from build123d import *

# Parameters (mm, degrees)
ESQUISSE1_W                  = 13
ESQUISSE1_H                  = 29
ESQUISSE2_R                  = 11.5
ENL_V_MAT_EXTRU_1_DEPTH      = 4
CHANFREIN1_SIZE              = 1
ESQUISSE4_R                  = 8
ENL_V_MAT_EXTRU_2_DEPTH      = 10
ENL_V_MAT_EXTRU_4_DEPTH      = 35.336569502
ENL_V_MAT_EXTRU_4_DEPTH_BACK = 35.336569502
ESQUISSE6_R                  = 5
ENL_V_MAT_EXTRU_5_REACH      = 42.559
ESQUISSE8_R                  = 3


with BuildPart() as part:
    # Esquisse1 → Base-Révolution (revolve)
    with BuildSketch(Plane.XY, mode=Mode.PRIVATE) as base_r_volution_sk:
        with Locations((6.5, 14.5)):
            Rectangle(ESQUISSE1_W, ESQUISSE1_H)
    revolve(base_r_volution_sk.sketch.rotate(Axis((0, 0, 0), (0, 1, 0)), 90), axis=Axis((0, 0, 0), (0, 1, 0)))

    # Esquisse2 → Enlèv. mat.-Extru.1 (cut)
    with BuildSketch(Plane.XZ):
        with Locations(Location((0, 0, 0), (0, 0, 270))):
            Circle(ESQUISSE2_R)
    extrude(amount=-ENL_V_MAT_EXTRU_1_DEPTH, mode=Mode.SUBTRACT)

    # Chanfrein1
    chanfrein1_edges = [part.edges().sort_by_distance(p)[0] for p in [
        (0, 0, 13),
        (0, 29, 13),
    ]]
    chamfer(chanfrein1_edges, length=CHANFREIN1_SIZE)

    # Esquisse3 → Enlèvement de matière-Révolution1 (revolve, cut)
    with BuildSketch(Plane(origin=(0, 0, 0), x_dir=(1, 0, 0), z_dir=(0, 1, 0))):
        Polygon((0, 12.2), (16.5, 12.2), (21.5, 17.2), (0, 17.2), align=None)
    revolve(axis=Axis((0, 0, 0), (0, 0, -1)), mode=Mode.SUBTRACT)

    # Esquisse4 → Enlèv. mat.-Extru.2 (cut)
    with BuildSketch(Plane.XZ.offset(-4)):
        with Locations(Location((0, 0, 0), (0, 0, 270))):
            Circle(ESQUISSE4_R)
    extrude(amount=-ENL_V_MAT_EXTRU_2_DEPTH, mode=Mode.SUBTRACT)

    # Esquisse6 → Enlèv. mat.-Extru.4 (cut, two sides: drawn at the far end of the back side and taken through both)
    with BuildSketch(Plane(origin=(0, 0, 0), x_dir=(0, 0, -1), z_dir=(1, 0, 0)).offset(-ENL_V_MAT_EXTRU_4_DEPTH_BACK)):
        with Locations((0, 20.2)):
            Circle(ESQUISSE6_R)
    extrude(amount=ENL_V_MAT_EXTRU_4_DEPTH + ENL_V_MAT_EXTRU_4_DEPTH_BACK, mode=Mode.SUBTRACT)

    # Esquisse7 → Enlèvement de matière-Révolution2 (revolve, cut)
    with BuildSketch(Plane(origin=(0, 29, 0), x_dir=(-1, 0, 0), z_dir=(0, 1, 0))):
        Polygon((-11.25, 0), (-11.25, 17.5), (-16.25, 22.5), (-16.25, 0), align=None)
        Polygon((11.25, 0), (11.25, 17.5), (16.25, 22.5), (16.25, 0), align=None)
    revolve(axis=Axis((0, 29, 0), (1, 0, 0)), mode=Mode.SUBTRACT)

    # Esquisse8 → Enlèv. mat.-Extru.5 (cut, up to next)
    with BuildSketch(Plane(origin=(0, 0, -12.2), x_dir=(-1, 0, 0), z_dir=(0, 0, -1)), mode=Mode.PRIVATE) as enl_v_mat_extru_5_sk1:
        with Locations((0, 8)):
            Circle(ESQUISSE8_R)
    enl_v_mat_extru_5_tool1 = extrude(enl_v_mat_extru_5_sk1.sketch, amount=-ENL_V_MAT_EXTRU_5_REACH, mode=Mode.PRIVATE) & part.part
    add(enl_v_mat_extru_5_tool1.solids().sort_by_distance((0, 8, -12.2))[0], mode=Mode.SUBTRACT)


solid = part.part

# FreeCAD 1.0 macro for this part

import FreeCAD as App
import Part
import Sketcher

V = App.Vector
Q = App.Units.Quantity


def edges_at(feature, points):
    """Names of the edges that pass closest to the given points."""
    edges = feature.Shape.Edges
    near = lambda p: min(range(len(edges)), key=lambda i: edges[i].distToShape(Part.Vertex(*p))[0])
    return sorted({f"Edge{near(p) + 1}" for p in points})


def add_polygon(sketch, points):
    """Adds a closed chain of lines whose ends are joined by coincident constraints."""
    first, n = sketch.GeometryCount, len(points)
    for a, b in zip(points, points[1:] + points[:1]):
        sketch.addGeometry(Part.LineSegment(App.Vector(*a, 0), App.Vector(*b, 0)), False)
    for i in range(n):
        sketch.addConstraint(Sketcher.Constraint("Coincident", first + i, 2, first + (i + 1) % n, 1))

doc = App.newDocument("Part")
body = doc.addObject("PartDesign::Body", "Body")

sketch1 = body.newObject("Sketcher::SketchObject", "Sketch")
sketch1.AttachmentSupport = (doc.getObject("XY_Plane"), [""])
sketch1.MapMode = "FlatFace"
add_polygon(sketch1, [(0, 29), (0, 0), (13, 0), (13, 29)])
sketch1.addConstraint([
    Sketcher.Constraint("Vertical", 0),
    Sketcher.Constraint("Horizontal", 1),
    Sketcher.Constraint("Vertical", 2),
    Sketcher.Constraint("Horizontal", 3),
    Sketcher.Constraint("Coincident", 0, 2, -1, 1),
    Sketcher.Constraint("DistanceX", 1, 1, 1, 2, 13.0),
    Sketcher.Constraint("DistanceY", 0, 2, 0, 1, 29.0),
])
revolution = body.newObject("PartDesign::Revolution", "Revolution")
revolution.Profile = sketch1
revolution.ReferenceAxis = (sketch1, ["V_Axis"])
revolution.Angle = 360

sketch2 = body.newObject("Sketcher::SketchObject", "Sketch001")
sketch2.AttachmentSupport = (doc.getObject("XZ_Plane"), [""])
sketch2.MapMode = "FlatFace"
sketch2.addGeometry(Part.Circle(V(0, 0, 0), V(0, 0, 1), 12), False)
sketch2.addConstraint([
    Sketcher.Constraint("Coincident", 0, 3, -1, 1),
    Sketcher.Constraint("Diameter", 0, 23.0),
])
pocket1 = body.newObject("PartDesign::Pocket", "Pocket")
pocket1.Profile = sketch2
pocket1.Length = 4
doc.recompute()

chamfer = body.newObject("PartDesign::Chamfer", "Chamfer")
chamfer.Base = (pocket1, edges_at(pocket1, [(0, 0, 13), (0, 29, 13)]))
chamfer.Size = 1

sketch3 = body.newObject("Sketcher::SketchObject", "Sketch002")
sketch3.AttachmentSupport = (doc.getObject("XZ_Plane"), [""])
sketch3.MapMode = "FlatFace"
add_polygon(sketch3, [(0, -12), (16, -12), (22, -17), (0, -17)])
sketch3.addConstraint([
    Sketcher.Constraint("Horizontal", 0),
    Sketcher.Constraint("Horizontal", 2),
    Sketcher.Constraint("Vertical", 3),
    Sketcher.Constraint("PointOnObject", 2, 2, -2),
    Sketcher.Constraint("DistanceY", 3, 1, 3, 2, 5.0),
    Sketcher.Constraint("Angle", 1, Q("-45 deg")),
    Sketcher.Constraint("DistanceX", 0, 1, 0, 2, 16.5),
    Sketcher.Constraint("DistanceY", 0, 2, -1, 1, 12.2),
])
groove = body.newObject("PartDesign::Groove", "Groove")
groove.Profile = sketch3
groove.ReferenceAxis = (sketch3, ["V_Axis"])
groove.Angle = 360

sketch4 = body.newObject("Sketcher::SketchObject", "Sketch003")
sketch4.AttachmentSupport = (doc.getObject("XZ_Plane"), [""])
sketch4.MapMode = "FlatFace"
sketch4.AttachmentOffset = App.Placement(V(0, 0, -4), App.Rotation())
sketch4.addGeometry(Part.Circle(V(0, 0, 0), V(0, 0, 1), 8), False)
sketch4.addConstraint([
    Sketcher.Constraint("Coincident", 0, 3, -1, 1),
    Sketcher.Constraint("Diameter", 0, 16.0),
])
pocket2 = body.newObject("PartDesign::Pocket", "Pocket001")
pocket2.Profile = sketch4
pocket2.Length = 10

sketch5 = body.newObject("Sketcher::SketchObject", "Sketch004")
sketch5.AttachmentSupport = (doc.getObject("YZ_Plane"), [""])
sketch5.MapMode = "FlatFace"
sketch5.addGeometry(Part.Circle(V(20, 0, 0), V(0, 0, 1), 5), False)
sketch5.addConstraint([
    Sketcher.Constraint("PointOnObject", 0, 3, -1),
    Sketcher.Constraint("Diameter", 0, 10.0),
    Sketcher.Constraint("DistanceX", -1, 1, 0, 3, 20.2),
])
pocket3 = body.newObject("PartDesign::Pocket", "Pocket002")
pocket3.Profile = sketch5
pocket3.Type = "ThroughAll"
pocket3.Midplane = True

sketch6 = body.newObject("Sketcher::SketchObject", "Sketch005")
sketch6.AttachmentSupport = (doc.getObject("XZ_Plane"), [""])
sketch6.MapMode = "FlatFace"
sketch6.AttachmentOffset = App.Placement(V(0, 0, -29), App.Rotation())
add_polygon(sketch6, [(11, 0), (11, 18), (16, 22), (16, 0)])
add_polygon(sketch6, [(-11, 18), (-11, 0), (-16, 0), (-16, 22)])
sketch6.addConstraint([
    Sketcher.Constraint("Vertical", 0),
    Sketcher.Constraint("Vertical", 2),
    Sketcher.Constraint("Horizontal", 3),
    Sketcher.Constraint("Vertical", 4),
    Sketcher.Constraint("Horizontal", 5),
    Sketcher.Constraint("Vertical", 6),
    Sketcher.Constraint("Symmetric", 3, 2, 4, 2, -1, 1),
    Sketcher.Constraint("Symmetric", 2, 2, 5, 2, -2),
    Sketcher.Constraint("Perpendicular", 1, 7),
    Sketcher.Constraint("Horizontal", 1, 2, 6, 2),
    Sketcher.Constraint("Horizontal", 0, 2, 7, 2),
    Sketcher.Constraint("DistanceX", 3, 2, 3, 1, 5.0),
    Sketcher.Constraint("DistanceY", 0, 1, 0, 2, 17.5),
    Sketcher.Constraint("DistanceX", 4, 2, 3, 2, 22.5),
])
groove2 = body.newObject("PartDesign::Groove", "Groove001")
groove2.Profile = sketch6
groove2.ReferenceAxis = (sketch6, ["H_Axis"])
groove2.Angle = 360

sketch7 = body.newObject("Sketcher::SketchObject", "Sketch006")
sketch7.AttachmentSupport = (doc.getObject("XY_Plane"), [""])
sketch7.MapMode = "FlatFace"
sketch7.AttachmentOffset = App.Placement(V(0, 0, -12.2), App.Rotation())
sketch7.addGeometry(Part.Circle(V(0, 8, 0), V(0, 0, 1), 3), False)
sketch7.addConstraint([
    Sketcher.Constraint("PointOnObject", 0, 3, -2),
    Sketcher.Constraint("Diameter", 0, 6.0),
    Sketcher.Constraint("DistanceY", -1, 1, 0, 3, 8.0),
])
pocket4 = body.newObject("PartDesign::Pocket", "Pocket003")
pocket4.Profile = sketch7
pocket4.Length = 4.783802
pocket4.Reversed = True

doc.recompute()
